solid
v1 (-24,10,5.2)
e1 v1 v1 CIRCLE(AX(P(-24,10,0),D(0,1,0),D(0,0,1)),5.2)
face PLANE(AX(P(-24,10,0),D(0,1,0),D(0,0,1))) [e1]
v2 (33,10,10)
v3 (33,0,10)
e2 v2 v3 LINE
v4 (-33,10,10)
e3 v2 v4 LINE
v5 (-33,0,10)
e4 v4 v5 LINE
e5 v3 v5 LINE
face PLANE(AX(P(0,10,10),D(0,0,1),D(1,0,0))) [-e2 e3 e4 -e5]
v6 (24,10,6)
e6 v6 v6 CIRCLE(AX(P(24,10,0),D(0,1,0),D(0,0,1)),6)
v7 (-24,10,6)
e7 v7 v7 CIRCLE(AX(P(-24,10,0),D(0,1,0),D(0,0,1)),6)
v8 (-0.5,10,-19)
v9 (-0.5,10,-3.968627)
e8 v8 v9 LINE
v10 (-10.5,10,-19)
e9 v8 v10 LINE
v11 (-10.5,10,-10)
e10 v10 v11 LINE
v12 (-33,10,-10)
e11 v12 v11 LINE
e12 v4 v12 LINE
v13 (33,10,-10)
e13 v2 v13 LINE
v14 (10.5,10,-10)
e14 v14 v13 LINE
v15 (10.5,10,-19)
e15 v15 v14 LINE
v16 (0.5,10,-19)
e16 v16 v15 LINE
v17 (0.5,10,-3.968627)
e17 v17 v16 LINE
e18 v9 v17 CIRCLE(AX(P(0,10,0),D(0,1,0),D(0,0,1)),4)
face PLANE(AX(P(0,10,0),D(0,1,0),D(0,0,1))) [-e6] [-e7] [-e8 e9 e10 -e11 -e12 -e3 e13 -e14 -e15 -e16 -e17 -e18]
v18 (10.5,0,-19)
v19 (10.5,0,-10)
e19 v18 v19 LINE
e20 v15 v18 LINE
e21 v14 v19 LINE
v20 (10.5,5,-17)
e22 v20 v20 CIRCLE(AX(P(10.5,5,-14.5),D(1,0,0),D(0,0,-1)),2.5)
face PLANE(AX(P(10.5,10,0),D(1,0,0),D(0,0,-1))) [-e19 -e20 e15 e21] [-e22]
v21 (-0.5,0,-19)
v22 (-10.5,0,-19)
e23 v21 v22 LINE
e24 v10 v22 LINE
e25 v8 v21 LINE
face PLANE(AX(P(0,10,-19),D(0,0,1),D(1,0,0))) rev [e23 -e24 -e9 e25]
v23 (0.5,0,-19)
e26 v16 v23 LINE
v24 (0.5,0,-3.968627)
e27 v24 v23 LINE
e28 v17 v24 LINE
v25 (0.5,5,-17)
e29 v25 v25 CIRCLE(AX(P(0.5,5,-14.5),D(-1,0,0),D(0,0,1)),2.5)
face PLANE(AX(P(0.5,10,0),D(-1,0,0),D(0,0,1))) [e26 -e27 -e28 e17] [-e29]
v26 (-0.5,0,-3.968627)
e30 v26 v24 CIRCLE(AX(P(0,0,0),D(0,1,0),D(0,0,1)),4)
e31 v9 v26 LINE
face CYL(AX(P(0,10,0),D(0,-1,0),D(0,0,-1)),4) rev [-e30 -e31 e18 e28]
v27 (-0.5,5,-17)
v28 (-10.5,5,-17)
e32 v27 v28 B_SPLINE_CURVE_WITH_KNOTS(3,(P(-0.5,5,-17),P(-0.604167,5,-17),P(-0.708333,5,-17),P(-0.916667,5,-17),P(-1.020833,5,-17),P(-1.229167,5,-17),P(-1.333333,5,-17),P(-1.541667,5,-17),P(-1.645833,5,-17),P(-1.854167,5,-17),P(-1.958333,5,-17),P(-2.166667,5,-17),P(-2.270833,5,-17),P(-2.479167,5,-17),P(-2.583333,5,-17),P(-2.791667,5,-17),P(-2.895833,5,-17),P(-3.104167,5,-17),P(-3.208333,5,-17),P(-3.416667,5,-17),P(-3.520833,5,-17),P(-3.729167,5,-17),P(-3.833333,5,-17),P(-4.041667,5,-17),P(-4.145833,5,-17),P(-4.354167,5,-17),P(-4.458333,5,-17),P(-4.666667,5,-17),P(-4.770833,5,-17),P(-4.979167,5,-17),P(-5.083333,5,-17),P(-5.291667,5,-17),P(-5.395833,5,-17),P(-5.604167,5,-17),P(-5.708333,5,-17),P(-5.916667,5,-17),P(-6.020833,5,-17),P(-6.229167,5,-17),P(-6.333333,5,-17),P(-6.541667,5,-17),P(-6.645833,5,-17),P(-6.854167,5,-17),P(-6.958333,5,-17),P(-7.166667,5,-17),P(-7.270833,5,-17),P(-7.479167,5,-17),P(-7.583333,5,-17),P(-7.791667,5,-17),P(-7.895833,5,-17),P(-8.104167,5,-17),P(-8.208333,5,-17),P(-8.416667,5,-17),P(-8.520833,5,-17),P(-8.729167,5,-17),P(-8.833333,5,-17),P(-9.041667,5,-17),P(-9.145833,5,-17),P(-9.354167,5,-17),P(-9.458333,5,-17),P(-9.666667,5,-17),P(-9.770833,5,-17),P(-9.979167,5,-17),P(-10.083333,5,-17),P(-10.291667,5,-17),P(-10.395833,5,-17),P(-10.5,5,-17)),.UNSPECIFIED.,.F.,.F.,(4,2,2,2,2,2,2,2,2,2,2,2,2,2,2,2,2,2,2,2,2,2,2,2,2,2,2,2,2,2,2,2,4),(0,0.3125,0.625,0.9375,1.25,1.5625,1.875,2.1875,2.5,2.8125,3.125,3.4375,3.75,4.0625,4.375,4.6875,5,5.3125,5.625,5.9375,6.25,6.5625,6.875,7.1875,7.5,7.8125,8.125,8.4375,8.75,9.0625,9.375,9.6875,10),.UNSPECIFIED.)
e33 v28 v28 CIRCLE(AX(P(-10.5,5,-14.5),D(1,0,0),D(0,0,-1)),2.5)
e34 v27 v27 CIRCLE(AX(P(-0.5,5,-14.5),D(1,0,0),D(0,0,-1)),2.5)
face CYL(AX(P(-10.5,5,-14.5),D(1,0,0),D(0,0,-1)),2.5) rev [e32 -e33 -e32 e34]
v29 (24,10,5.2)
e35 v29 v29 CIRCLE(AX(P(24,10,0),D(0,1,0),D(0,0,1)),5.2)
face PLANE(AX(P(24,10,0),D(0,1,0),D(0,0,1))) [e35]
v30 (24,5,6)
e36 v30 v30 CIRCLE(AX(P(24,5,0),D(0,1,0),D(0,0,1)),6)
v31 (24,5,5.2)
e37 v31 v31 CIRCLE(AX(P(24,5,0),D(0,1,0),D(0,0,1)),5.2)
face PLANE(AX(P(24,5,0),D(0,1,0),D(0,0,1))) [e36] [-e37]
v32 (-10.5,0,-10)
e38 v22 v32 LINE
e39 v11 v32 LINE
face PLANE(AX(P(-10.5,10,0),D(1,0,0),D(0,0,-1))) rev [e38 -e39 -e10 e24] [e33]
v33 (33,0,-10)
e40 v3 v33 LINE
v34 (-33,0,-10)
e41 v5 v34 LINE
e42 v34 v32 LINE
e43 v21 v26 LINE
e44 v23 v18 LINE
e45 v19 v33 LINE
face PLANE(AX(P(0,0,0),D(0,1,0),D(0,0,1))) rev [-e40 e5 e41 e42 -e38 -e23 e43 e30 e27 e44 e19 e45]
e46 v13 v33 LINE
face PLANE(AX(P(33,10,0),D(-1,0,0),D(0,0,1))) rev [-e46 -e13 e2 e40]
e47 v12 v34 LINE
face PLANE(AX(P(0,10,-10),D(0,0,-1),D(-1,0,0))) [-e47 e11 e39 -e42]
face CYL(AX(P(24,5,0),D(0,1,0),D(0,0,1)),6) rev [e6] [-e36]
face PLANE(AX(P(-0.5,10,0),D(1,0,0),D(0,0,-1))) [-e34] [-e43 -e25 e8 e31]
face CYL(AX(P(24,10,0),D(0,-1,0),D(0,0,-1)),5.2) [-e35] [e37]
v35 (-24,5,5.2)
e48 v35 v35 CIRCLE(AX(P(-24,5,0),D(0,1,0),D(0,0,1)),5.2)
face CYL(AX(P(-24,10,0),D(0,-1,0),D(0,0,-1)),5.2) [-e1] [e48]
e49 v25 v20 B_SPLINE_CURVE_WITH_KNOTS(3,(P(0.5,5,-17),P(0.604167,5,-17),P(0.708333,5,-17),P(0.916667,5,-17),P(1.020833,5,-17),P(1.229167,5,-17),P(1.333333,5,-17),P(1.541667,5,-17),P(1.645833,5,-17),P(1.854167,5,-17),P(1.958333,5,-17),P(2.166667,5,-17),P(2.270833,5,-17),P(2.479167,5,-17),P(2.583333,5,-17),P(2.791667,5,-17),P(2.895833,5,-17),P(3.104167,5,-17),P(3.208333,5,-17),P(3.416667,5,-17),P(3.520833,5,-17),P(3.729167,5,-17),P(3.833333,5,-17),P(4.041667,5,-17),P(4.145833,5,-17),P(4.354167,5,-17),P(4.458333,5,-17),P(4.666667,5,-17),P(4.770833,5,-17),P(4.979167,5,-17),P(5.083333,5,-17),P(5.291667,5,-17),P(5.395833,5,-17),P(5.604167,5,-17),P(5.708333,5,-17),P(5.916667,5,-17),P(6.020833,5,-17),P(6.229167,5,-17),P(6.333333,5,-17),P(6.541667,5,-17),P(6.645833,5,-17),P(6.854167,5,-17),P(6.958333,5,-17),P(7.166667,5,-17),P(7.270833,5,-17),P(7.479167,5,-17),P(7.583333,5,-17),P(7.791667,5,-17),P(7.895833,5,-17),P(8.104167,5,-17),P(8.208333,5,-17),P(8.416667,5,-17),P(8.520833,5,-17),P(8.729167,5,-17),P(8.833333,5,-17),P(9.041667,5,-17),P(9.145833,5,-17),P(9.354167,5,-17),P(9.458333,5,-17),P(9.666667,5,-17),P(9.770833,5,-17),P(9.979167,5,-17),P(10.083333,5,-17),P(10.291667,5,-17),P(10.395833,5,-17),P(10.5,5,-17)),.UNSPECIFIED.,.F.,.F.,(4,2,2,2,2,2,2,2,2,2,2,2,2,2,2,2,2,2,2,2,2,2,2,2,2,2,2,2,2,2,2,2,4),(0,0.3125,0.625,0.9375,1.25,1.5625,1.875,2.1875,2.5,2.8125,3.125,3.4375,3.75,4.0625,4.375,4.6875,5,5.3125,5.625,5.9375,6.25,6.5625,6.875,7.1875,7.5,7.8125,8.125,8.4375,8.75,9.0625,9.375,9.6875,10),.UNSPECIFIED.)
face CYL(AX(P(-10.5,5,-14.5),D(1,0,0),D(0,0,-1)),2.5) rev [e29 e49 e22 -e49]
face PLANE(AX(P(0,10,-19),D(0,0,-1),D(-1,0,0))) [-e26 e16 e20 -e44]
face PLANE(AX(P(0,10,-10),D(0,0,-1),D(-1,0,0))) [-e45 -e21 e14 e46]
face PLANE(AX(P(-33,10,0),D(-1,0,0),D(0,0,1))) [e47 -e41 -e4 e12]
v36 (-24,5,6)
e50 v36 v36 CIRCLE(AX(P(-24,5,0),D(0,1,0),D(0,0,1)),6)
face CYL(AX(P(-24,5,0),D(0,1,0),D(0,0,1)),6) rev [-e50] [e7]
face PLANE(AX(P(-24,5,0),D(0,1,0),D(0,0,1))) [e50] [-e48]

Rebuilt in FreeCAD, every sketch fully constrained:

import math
import FreeCAD as App
import Part
import Sketcher

V = App.Vector

doc = App.newDocument("Part")
body = doc.addObject("PartDesign::Body", "Body")

# Sketch on XZ plane
sketch1 = body.newObject("Sketcher::SketchObject", "Sketch")
sketch1.AttachmentSupport = (doc.getObject("XZ_Plane"), [""])
sketch1.MapMode = "FlatFace"
sketch1.addGeometry([
    Part.LineSegment(V(10.5, -19, 0), V(0.5, -19, 0)),  # 0
    Part.LineSegment(V(0.5, -19, 0), V(0.5, -3.968627, 0)),  # 1
    Part.ArcOfCircle(Part.Circle(V(0, 0, 0), V(0, 0, 1), 4), math.radians(-82.819244), math.radians(0)),  # 2
    Part.ArcOfCircle(Part.Circle(V(0, 0, 0), V(0, 0, 1), 4), math.radians(0), math.radians(262.819244)),  # 3
    Part.LineSegment(V(-0.5, -3.968627, 0), V(-0.5, -19, 0)),  # 4
    Part.LineSegment(V(-0.5, -19, 0), V(-10.5, -19, 0)),  # 5
    Part.LineSegment(V(-10.5, -19, 0), V(-10.5, -10, 0)),  # 6
    Part.LineSegment(V(-10.5, -10, 0), V(-33, -10, 0)),  # 7
    Part.LineSegment(V(-33, -10, 0), V(-33, 10, 0)),  # 8
    Part.LineSegment(V(-33, 10, 0), V(33, 10, 0)),  # 9
    Part.LineSegment(V(33, 10, 0), V(33, -10, 0)),  # 10
    Part.LineSegment(V(33, -10, 0), V(10.5, -10, 0)),  # 11
    Part.LineSegment(V(10.5, -10, 0), V(10.5, -19, 0)),  # 12
], False)
sketch1.addConstraint([
    Sketcher.Constraint("Coincident", 0, 2, 1, 1),
    Sketcher.Constraint("Coincident", 1, 2, 2, 1),
    Sketcher.Constraint("Tangent", 2, 2, 3, 1),
    Sketcher.Constraint("Coincident", 3, 2, 4, 1),
    Sketcher.Constraint("Coincident", 4, 2, 5, 1),
    Sketcher.Constraint("Coincident", 5, 2, 6, 1),
    Sketcher.Constraint("Coincident", 6, 2, 7, 1),
    Sketcher.Constraint("Coincident", 7, 2, 8, 1),
    Sketcher.Constraint("Coincident", 8, 2, 9, 1),
    Sketcher.Constraint("Coincident", 9, 2, 10, 1),
    Sketcher.Constraint("Coincident", 10, 2, 11, 1),
    Sketcher.Constraint("Coincident", 11, 2, 12, 1),
    Sketcher.Constraint("Coincident", 12, 2, 0, 1),
    Sketcher.Constraint("Horizontal", 0),
    Sketcher.Constraint("Vertical", 1),
    Sketcher.Constraint("Vertical", 4),
    Sketcher.Constraint("Horizontal", 5),
    Sketcher.Constraint("Vertical", 6),
    Sketcher.Constraint("Horizontal", 7),
    Sketcher.Constraint("Vertical", 8),
    Sketcher.Constraint("Horizontal", 9),
    Sketcher.Constraint("Vertical", 10),
    Sketcher.Constraint("Horizontal", 11),
    Sketcher.Constraint("Vertical", 12),
    Sketcher.Constraint("Coincident", 2, 3, -1, 1),
    Sketcher.Constraint("Equal", 2, 3),
    Sketcher.Constraint("Symmetric", 7, 2, 9, 2, -1, 1),
    Sketcher.Constraint("Symmetric", 0, 2, 4, 2, -2),
    Sketcher.Constraint("Symmetric", 6, 2, 11, 2, -2),
    Sketcher.Constraint("PointOnObject", 2, 2, -1),
    Sketcher.Constraint("Radius", 2, 4.0),
    Sketcher.Constraint("DistanceX", 0, 2, 0, 1, 10.0),
    Sketcher.Constraint("DistanceX", 9, 1, 9, 2, 66.0),
    Sketcher.Constraint("DistanceY", 6, 1, 6, 2, 9.0),
    Sketcher.Constraint("DistanceY", 8, 1, 8, 2, 20.0),
    Sketcher.Constraint("DistanceX", 7, 2, 7, 1, 22.5),
])
pad1 = body.newObject("PartDesign::Pad", "Pad")
pad1.Profile = sketch1
pad1.Length = 10
pad1.Reversed = True

# Sketch on YZ plane
sketch2 = body.newObject("Sketcher::SketchObject", "Sketch001")
sketch2.AttachmentSupport = (doc.getObject("YZ_Plane"), [""])
sketch2.MapMode = "FlatFace"
sketch2.AttachmentOffset = App.Placement(V(0, 0, 10.5), App.Rotation())
sketch2.addGeometry(Part.Circle(V(5, -14.5, 0), V(0, 0, 1), 2.5), False)
sketch2.addConstraint([
    Sketcher.Constraint("Diameter", 0, 5.0),
    Sketcher.Constraint("DistanceX", -1, 1, 0, 3, 5.0),
    Sketcher.Constraint("DistanceY", 0, 3, -1, 1, 14.5),
])
pocket1 = body.newObject("PartDesign::Pocket", "Pocket")
pocket1.Profile = sketch2
pocket1.Length = 21

# Sketch on XZ plane
sketch3 = body.newObject("Sketcher::SketchObject", "Sketch002")
sketch3.AttachmentSupport = (doc.getObject("XZ_Plane"), [""])
sketch3.MapMode = "FlatFace"
sketch3.AttachmentOffset = App.Placement(V(0, 0, -10), App.Rotation())
sketch3.addGeometry([
    Part.Circle(V(24, 0, 0), V(0, 0, 1), 6),
    Part.Circle(V(-24, 0, 0), V(0, 0, 1), 6),
], False)
sketch3.addConstraint([
    Sketcher.Constraint("Equal", 0, 1),
    Sketcher.Constraint("Symmetric", 0, 3, 1, 3, -1, 1),
    Sketcher.Constraint("PointOnObject", 0, 3, -1),
    Sketcher.Constraint("Diameter", 0, 12.0),
    Sketcher.Constraint("DistanceX", -1, 1, 0, 3, 24.0),
])
pocket2 = body.newObject("PartDesign::Pocket", "Pocket001")
pocket2.Profile = sketch3
pocket2.Length = 5
pocket2.Reversed = True

# Sketch on XZ plane
sketch4 = body.newObject("Sketcher::SketchObject", "Sketch003")
sketch4.AttachmentSupport = (doc.getObject("XZ_Plane"), [""])
sketch4.MapMode = "FlatFace"
sketch4.AttachmentOffset = App.Placement(V(0, 0, -5), App.Rotation())
sketch4.addGeometry([
    Part.Circle(V(24, 0, 0), V(0, 0, 1), 5.2),
    Part.Circle(V(-24, 0, 0), V(0, 0, 1), 5.2),
], False)
sketch4.addConstraint([
    Sketcher.Constraint("Equal", 0, 1),
    Sketcher.Constraint("Symmetric", 0, 3, 1, 3, -1, 1),
    Sketcher.Constraint("PointOnObject", 0, 3, -1),
    Sketcher.Constraint("Diameter", 0, 10.4),
    Sketcher.Constraint("DistanceX", -1, 1, 0, 3, 24.0),
])
pad2 = body.newObject("PartDesign::Pad", "Pad001")
pad2.Profile = sketch4
pad2.Length = 5
pad2.Reversed = True

doc.recompute()
